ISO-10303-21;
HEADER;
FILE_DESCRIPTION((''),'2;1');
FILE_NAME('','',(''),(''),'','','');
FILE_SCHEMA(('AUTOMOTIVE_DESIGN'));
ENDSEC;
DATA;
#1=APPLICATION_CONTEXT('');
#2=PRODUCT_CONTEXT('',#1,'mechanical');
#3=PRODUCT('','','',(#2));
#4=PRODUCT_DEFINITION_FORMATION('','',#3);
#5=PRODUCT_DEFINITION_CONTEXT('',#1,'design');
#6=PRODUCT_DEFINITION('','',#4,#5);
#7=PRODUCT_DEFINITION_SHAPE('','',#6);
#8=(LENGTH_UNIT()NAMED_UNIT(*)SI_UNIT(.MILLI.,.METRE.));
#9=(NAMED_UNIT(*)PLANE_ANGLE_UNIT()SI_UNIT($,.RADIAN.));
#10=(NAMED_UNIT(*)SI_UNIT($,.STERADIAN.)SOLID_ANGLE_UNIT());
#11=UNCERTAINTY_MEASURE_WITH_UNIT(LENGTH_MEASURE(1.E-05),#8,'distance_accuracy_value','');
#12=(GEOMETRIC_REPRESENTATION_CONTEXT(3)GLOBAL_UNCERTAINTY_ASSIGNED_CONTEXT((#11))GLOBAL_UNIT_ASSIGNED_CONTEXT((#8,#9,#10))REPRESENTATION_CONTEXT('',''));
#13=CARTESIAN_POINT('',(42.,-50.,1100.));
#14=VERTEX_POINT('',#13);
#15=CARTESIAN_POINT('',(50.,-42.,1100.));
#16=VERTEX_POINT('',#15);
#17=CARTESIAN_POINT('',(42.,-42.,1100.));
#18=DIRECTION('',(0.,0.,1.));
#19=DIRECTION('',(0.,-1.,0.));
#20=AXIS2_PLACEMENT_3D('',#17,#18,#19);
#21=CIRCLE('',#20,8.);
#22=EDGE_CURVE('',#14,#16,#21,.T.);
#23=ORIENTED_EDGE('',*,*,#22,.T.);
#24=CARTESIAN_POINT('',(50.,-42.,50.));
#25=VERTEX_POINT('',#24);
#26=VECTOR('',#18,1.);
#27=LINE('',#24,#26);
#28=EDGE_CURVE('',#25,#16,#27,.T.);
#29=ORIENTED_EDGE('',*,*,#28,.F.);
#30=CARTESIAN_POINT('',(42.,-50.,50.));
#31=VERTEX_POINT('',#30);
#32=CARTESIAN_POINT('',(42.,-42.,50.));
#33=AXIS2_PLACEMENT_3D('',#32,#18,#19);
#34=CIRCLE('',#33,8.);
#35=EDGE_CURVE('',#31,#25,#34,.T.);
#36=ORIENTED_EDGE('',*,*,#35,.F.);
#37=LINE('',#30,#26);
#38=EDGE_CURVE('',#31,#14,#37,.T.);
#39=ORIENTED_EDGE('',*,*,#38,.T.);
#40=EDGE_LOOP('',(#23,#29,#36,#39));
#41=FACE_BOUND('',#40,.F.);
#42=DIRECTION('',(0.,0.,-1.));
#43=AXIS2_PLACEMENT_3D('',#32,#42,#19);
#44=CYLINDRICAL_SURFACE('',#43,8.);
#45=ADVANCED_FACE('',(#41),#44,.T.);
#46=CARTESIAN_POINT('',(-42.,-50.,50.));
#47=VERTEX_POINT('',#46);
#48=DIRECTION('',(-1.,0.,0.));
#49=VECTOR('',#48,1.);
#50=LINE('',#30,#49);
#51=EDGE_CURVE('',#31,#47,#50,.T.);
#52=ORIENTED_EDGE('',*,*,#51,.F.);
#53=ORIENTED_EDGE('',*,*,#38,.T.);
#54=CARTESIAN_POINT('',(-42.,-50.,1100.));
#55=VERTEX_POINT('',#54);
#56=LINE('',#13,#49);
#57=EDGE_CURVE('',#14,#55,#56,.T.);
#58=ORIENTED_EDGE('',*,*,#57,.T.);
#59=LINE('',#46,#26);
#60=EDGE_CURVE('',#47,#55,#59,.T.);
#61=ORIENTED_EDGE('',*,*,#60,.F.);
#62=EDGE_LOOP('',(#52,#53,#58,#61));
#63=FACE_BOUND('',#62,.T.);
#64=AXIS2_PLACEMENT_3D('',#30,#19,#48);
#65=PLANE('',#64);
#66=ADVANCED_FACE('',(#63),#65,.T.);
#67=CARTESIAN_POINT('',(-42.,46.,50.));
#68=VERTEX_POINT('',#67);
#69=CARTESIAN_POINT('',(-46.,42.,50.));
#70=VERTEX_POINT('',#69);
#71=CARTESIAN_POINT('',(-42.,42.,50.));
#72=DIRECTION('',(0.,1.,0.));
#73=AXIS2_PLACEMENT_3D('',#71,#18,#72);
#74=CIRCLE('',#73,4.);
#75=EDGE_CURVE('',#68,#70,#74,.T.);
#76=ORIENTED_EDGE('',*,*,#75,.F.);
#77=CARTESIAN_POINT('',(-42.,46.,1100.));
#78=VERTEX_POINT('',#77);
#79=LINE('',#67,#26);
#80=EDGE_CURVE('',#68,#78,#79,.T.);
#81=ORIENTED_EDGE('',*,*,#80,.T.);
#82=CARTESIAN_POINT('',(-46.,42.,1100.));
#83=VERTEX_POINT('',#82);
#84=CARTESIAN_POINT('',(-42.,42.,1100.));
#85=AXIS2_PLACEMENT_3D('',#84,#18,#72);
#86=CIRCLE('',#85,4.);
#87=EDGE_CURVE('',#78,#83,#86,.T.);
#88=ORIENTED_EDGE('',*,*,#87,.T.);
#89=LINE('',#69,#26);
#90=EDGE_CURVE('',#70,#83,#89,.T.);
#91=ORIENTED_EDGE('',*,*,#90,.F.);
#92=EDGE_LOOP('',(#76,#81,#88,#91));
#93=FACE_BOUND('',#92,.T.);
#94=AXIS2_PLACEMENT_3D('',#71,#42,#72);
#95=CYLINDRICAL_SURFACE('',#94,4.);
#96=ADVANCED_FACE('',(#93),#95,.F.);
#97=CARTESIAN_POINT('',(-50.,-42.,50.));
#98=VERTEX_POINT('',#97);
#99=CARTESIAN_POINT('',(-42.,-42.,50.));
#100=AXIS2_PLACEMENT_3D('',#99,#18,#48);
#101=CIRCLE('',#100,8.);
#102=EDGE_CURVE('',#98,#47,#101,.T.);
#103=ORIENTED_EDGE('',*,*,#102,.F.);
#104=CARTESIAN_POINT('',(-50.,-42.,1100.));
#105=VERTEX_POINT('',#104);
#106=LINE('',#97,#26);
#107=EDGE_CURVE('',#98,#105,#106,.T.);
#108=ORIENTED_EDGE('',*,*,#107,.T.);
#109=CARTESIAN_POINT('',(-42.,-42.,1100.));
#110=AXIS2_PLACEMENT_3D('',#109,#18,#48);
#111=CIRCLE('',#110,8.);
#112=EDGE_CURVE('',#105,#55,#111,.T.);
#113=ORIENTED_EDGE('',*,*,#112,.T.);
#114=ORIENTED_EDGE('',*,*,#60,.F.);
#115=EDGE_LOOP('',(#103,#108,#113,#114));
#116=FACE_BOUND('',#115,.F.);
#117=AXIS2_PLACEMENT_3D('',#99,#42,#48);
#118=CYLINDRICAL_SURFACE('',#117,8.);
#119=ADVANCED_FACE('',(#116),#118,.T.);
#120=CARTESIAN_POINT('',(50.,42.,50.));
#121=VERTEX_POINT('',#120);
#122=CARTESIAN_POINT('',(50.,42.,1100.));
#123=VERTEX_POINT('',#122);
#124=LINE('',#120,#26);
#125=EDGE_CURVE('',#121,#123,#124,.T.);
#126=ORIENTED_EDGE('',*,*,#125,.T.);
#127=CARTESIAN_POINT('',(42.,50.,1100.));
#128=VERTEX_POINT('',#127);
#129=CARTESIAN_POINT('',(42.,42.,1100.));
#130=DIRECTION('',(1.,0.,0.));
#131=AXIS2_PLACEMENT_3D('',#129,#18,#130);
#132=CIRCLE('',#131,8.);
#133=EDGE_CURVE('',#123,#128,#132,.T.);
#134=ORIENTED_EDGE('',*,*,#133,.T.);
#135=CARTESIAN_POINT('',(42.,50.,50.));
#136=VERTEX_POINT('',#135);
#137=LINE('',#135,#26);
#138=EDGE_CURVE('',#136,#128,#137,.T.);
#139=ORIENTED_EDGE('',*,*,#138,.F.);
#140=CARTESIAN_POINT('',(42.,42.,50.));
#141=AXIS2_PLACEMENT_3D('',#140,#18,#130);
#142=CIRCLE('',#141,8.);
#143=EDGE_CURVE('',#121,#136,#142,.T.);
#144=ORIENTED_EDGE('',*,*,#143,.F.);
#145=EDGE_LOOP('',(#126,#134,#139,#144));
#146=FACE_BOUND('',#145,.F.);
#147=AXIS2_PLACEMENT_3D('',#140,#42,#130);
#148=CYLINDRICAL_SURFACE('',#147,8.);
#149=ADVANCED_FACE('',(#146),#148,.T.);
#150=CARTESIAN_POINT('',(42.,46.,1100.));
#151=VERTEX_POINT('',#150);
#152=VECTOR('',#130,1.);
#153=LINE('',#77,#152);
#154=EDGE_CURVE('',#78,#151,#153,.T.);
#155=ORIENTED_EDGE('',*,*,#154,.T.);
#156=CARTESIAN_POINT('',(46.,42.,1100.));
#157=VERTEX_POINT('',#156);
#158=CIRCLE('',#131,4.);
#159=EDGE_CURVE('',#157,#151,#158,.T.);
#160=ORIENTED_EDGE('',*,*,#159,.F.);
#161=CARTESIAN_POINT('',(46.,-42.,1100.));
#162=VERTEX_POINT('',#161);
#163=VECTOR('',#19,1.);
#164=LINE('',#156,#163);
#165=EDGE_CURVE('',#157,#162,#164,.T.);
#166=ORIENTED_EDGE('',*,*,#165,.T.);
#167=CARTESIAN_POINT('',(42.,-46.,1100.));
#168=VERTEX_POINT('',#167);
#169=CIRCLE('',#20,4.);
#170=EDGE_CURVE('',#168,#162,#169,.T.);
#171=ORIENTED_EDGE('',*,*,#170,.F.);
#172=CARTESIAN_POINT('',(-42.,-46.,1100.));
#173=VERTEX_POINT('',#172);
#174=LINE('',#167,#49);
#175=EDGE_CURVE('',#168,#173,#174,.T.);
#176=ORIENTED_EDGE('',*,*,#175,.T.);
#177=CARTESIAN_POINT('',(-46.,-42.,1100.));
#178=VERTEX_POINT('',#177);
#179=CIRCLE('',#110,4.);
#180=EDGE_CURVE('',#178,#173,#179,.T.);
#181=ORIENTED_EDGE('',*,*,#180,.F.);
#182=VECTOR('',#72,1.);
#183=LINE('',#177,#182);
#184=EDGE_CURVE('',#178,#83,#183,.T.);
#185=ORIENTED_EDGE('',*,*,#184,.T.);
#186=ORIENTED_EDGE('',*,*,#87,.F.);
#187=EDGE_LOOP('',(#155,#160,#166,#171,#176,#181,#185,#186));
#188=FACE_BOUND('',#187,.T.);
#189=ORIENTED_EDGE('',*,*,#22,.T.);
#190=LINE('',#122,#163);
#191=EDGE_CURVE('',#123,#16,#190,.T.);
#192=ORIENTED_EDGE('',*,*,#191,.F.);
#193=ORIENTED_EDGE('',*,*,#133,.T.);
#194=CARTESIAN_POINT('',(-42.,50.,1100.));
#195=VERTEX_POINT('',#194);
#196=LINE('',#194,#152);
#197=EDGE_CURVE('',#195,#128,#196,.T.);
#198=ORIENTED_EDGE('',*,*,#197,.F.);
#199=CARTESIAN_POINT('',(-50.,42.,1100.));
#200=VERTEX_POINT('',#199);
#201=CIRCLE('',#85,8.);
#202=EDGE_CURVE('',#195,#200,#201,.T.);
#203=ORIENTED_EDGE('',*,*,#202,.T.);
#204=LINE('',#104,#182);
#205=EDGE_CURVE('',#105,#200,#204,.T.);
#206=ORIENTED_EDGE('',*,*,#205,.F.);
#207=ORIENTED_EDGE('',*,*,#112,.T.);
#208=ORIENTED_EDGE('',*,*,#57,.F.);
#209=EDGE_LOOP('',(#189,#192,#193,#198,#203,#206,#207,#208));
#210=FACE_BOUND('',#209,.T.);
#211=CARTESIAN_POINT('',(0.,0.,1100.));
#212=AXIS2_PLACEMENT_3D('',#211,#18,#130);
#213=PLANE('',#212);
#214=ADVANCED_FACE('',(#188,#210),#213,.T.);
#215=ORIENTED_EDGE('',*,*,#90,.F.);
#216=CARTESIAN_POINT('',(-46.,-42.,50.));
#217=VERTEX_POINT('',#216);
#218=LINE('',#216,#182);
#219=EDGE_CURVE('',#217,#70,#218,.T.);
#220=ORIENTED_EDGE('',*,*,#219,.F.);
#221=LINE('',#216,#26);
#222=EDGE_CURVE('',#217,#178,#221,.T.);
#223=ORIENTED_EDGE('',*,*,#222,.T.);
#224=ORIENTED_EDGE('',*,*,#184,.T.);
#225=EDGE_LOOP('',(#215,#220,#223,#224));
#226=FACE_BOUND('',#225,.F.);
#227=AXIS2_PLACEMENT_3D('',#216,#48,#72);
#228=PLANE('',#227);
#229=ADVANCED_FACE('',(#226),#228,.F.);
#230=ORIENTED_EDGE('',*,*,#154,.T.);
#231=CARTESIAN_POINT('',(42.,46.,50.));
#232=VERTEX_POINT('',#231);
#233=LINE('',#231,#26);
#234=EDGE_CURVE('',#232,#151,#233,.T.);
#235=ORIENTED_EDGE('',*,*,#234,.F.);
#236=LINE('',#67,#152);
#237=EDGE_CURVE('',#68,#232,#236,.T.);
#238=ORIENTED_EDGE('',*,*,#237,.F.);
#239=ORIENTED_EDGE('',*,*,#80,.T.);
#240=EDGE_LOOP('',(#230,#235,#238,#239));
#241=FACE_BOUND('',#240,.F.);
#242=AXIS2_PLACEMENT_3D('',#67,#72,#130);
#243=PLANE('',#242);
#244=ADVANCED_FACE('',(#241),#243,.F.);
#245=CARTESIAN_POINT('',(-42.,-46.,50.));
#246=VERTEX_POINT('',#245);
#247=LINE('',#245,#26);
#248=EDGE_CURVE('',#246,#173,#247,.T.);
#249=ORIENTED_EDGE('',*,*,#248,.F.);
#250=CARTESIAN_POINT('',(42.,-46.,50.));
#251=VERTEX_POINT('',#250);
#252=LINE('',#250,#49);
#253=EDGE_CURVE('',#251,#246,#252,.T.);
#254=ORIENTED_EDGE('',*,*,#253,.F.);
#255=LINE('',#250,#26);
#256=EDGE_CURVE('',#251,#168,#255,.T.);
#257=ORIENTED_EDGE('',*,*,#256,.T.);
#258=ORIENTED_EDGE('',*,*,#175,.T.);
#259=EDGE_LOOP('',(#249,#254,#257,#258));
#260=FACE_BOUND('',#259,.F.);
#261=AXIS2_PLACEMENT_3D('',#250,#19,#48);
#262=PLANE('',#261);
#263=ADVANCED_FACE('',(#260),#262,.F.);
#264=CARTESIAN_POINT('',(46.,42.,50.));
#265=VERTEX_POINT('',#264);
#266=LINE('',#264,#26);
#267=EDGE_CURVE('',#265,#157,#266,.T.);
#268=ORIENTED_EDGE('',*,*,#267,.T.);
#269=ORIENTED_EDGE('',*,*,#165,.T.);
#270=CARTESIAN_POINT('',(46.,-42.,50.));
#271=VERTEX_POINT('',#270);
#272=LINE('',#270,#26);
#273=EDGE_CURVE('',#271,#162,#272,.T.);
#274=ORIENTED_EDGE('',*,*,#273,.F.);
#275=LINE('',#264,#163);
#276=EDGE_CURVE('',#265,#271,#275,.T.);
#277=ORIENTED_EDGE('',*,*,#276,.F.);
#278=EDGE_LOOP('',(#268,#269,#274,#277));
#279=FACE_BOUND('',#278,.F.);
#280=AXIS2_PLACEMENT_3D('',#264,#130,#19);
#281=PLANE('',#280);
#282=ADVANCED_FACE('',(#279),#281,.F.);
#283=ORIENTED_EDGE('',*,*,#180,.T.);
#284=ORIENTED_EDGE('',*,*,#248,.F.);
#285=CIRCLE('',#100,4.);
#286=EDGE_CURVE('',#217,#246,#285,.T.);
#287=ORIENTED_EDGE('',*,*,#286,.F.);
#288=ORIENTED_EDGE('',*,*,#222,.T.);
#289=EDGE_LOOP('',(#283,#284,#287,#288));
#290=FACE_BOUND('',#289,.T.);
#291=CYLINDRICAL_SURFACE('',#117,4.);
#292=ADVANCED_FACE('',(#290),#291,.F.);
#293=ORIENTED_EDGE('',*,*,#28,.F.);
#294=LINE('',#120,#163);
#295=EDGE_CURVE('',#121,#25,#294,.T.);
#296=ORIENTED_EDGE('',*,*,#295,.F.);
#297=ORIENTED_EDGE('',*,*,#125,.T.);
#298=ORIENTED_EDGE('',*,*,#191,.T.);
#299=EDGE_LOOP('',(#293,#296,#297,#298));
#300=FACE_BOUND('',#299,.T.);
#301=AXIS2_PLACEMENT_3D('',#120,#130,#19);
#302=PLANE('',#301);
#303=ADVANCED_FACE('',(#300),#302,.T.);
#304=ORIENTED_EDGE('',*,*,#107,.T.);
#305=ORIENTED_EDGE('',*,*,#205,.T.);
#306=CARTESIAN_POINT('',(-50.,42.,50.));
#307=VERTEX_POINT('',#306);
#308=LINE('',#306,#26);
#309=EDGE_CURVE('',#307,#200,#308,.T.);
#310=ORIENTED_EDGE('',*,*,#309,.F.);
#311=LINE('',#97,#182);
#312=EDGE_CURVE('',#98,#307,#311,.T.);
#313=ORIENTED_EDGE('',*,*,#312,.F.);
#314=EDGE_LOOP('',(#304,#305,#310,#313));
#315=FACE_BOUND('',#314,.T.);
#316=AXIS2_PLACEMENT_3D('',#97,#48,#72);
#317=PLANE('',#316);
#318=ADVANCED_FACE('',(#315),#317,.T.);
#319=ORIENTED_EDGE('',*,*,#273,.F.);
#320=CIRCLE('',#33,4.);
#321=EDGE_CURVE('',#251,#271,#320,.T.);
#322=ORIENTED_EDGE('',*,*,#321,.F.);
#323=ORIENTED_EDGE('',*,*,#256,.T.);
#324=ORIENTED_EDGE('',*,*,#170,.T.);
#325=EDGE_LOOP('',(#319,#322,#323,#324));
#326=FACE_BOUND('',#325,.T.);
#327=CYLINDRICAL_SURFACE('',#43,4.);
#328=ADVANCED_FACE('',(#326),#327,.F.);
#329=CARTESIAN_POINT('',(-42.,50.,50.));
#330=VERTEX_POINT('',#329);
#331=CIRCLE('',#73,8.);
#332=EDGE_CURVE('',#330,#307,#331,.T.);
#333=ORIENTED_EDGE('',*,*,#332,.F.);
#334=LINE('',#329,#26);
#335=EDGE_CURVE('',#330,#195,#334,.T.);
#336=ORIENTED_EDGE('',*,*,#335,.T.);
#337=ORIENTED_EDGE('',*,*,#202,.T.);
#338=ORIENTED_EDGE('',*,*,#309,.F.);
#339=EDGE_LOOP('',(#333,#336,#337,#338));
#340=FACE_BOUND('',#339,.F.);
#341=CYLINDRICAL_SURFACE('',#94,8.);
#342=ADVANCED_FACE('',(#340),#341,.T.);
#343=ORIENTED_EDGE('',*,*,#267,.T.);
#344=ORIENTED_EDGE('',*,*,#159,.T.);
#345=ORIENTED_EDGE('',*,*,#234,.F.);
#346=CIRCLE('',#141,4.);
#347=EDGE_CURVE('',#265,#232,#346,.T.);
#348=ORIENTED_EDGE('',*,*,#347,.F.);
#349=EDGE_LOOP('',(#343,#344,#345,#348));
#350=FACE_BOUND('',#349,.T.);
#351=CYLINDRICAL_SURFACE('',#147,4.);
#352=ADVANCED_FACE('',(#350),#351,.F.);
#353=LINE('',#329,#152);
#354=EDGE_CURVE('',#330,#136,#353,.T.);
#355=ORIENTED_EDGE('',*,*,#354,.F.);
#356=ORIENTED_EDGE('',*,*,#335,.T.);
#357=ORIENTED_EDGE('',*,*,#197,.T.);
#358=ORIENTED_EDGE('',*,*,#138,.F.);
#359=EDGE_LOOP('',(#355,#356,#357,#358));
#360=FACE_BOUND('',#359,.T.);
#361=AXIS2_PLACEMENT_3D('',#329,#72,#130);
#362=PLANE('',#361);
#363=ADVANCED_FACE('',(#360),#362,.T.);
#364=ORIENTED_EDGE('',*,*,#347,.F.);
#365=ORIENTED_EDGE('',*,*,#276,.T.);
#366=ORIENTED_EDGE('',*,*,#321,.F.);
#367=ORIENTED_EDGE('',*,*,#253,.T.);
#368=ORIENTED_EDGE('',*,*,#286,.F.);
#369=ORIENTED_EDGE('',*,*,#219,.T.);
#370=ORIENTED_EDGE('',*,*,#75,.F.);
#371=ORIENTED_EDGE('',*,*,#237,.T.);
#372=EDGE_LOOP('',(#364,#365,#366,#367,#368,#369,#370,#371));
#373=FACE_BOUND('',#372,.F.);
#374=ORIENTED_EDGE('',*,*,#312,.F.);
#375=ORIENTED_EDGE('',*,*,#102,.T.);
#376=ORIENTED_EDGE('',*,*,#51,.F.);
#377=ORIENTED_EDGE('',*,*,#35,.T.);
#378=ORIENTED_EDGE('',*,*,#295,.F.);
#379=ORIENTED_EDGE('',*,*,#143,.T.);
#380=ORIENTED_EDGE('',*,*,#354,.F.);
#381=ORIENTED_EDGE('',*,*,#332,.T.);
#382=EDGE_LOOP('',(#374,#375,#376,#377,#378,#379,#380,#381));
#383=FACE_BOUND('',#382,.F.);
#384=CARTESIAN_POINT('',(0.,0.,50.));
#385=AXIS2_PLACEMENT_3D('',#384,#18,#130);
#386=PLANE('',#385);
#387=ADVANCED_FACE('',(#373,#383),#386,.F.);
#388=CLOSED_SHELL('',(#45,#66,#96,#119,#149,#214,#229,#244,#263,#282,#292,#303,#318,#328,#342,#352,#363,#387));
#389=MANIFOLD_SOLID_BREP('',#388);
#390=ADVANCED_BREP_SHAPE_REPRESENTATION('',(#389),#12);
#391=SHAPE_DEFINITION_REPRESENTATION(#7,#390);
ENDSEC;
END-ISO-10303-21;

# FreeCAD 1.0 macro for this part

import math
import FreeCAD as App
import Part
import Sketcher

V = App.Vector
Q = App.Units.Quantity

doc = App.newDocument("Part")
params = doc.addObject("Spreadsheet::Sheet", "Params")
for row, (alias, value) in enumerate([
    ("sketch1_radius", "8 mm"),
    ("sketch1_radius2", "4 mm"),
    ("pad1_length", "1050 mm"),
], start=1):
    params.set(f"A{row}", alias)
    params.set(f"B{row}", "=" + value)
    params.setAlias(f"B{row}", alias)

body = doc.addObject("PartDesign::Body", "Body")

sketch1 = doc.addObject("Sketcher::SketchObject", "Sketch")
body.addObject(sketch1)
sketch1.AttachmentSupport = (doc.XY_Plane, [""])
sketch1.MapMode = "FlatFace"
sketch1.AttachmentOffset = App.Placement(V(0, 0, 50), App.Rotation())
sketch1.addGeometry([
    Part.LineSegment(V(-50, 42, 0), V(-50, -42, 0)),
    Part.ArcOfCircle(Part.Circle(V(-42, -42, 0), V(0, 0, 1), 8), math.radians(180), math.radians(270)),
    Part.LineSegment(V(-42, -50, 0), V(42, -50, 0)),
    Part.ArcOfCircle(Part.Circle(V(42, -42, 0), V(0, 0, 1), 8), math.radians(-90), math.radians(0)),
    Part.LineSegment(V(50, -42, 0), V(50, 42, 0)),
    Part.ArcOfCircle(Part.Circle(V(42, 42, 0), V(0, 0, 1), 8), math.radians(0), math.radians(90)),
    Part.LineSegment(V(42, 50, 0), V(-42, 50, 0)),
    Part.ArcOfCircle(Part.Circle(V(-42, 42, 0), V(0, 0, 1), 8), math.radians(90), math.radians(180)),
    Part.ArcOfCircle(Part.Circle(V(-42, 42, 0), V(0, 0, 1), 4), math.radians(90), math.radians(180)),
    Part.LineSegment(V(-42, 46, 0), V(42, 46, 0)),
    Part.ArcOfCircle(Part.Circle(V(42, 42, 0), V(0, 0, 1), 4), math.radians(0), math.radians(90)),
    Part.LineSegment(V(46, 42, 0), V(46, -42, 0)),
    Part.ArcOfCircle(Part.Circle(V(42, -42, 0), V(0, 0, 1), 4), math.radians(-90), math.radians(0)),
    Part.LineSegment(V(42, -46, 0), V(-42, -46, 0)),
    Part.ArcOfCircle(Part.Circle(V(-42, -42, 0), V(0, 0, 1), 4), math.radians(180), math.radians(270)),
    Part.LineSegment(V(-46, -42, 0), V(-46, 42, 0)),
], False)
sketch1.addConstraint([
    Sketcher.Constraint("Tangent", 0, 2, 1, 1),
    Sketcher.Constraint("Tangent", 1, 2, 2, 1),
    Sketcher.Constraint("Tangent", 2, 2, 3, 1),
    Sketcher.Constraint("Tangent", 3, 2, 4, 1),
    Sketcher.Constraint("Tangent", 4, 2, 5, 1),
    Sketcher.Constraint("Tangent", 5, 2, 6, 1),
    Sketcher.Constraint("Tangent", 6, 2, 7, 1),
    Sketcher.Constraint("Tangent", 7, 2, 0, 1),
    Sketcher.Constraint("Tangent", 8, 1, 9, 1),
    Sketcher.Constraint("Tangent", 9, 2, 10, 2),
    Sketcher.Constraint("Tangent", 10, 1, 11, 1),
    Sketcher.Constraint("Tangent", 11, 2, 12, 2),
    Sketcher.Constraint("Tangent", 12, 1, 13, 1),
    Sketcher.Constraint("Tangent", 13, 2, 14, 2),
    Sketcher.Constraint("Tangent", 14, 1, 15, 1),
    Sketcher.Constraint("Tangent", 15, 2, 8, 2),
    Sketcher.Constraint("Vertical", 0),
    Sketcher.Constraint("Horizontal", 2),
    Sketcher.Constraint("Vertical", 4),
    Sketcher.Constraint("Horizontal", 6),
    Sketcher.Constraint("Horizontal", 9),
    Sketcher.Constraint("Vertical", 11),
    Sketcher.Constraint("Horizontal", 13),
    Sketcher.Constraint("Vertical", 15),
    Sketcher.Constraint("Coincident", 8, 3, 7, 3),
    Sketcher.Constraint("Coincident", 10, 3, 5, 3),
    Sketcher.Constraint("Coincident", 12, 3, 3, 3),
    Sketcher.Constraint("Equal", 1, 3),
    Sketcher.Constraint("Equal", 3, 5),
    Sketcher.Constraint("Equal", 5, 7),
    Sketcher.Constraint("Equal", 12, 14),
    Sketcher.Constraint("Symmetric", 1, 3, 5, 3, -1, 1),
    Sketcher.Constraint("Equal", 13, 0),
    Sketcher.Constraint("Radius", 1, Q("8 mm")),
    Sketcher.Constraint("Radius", 8, Q("4 mm")),
    Sketcher.Constraint("DistanceX", 0, 2, -1, 1, Q("50 mm")),
])
sketch1.setExpression("Constraints[33]", "Params.sketch1_radius")
sketch1.setExpression("Constraints[34]", "Params.sketch1_radius2")
pad1 = doc.addObject("PartDesign::Pad", "Pad")
body.addObject(pad1)
pad1.Profile = sketch1
pad1.setExpression("Length", "Params.pad1_length")

doc.recompute()
